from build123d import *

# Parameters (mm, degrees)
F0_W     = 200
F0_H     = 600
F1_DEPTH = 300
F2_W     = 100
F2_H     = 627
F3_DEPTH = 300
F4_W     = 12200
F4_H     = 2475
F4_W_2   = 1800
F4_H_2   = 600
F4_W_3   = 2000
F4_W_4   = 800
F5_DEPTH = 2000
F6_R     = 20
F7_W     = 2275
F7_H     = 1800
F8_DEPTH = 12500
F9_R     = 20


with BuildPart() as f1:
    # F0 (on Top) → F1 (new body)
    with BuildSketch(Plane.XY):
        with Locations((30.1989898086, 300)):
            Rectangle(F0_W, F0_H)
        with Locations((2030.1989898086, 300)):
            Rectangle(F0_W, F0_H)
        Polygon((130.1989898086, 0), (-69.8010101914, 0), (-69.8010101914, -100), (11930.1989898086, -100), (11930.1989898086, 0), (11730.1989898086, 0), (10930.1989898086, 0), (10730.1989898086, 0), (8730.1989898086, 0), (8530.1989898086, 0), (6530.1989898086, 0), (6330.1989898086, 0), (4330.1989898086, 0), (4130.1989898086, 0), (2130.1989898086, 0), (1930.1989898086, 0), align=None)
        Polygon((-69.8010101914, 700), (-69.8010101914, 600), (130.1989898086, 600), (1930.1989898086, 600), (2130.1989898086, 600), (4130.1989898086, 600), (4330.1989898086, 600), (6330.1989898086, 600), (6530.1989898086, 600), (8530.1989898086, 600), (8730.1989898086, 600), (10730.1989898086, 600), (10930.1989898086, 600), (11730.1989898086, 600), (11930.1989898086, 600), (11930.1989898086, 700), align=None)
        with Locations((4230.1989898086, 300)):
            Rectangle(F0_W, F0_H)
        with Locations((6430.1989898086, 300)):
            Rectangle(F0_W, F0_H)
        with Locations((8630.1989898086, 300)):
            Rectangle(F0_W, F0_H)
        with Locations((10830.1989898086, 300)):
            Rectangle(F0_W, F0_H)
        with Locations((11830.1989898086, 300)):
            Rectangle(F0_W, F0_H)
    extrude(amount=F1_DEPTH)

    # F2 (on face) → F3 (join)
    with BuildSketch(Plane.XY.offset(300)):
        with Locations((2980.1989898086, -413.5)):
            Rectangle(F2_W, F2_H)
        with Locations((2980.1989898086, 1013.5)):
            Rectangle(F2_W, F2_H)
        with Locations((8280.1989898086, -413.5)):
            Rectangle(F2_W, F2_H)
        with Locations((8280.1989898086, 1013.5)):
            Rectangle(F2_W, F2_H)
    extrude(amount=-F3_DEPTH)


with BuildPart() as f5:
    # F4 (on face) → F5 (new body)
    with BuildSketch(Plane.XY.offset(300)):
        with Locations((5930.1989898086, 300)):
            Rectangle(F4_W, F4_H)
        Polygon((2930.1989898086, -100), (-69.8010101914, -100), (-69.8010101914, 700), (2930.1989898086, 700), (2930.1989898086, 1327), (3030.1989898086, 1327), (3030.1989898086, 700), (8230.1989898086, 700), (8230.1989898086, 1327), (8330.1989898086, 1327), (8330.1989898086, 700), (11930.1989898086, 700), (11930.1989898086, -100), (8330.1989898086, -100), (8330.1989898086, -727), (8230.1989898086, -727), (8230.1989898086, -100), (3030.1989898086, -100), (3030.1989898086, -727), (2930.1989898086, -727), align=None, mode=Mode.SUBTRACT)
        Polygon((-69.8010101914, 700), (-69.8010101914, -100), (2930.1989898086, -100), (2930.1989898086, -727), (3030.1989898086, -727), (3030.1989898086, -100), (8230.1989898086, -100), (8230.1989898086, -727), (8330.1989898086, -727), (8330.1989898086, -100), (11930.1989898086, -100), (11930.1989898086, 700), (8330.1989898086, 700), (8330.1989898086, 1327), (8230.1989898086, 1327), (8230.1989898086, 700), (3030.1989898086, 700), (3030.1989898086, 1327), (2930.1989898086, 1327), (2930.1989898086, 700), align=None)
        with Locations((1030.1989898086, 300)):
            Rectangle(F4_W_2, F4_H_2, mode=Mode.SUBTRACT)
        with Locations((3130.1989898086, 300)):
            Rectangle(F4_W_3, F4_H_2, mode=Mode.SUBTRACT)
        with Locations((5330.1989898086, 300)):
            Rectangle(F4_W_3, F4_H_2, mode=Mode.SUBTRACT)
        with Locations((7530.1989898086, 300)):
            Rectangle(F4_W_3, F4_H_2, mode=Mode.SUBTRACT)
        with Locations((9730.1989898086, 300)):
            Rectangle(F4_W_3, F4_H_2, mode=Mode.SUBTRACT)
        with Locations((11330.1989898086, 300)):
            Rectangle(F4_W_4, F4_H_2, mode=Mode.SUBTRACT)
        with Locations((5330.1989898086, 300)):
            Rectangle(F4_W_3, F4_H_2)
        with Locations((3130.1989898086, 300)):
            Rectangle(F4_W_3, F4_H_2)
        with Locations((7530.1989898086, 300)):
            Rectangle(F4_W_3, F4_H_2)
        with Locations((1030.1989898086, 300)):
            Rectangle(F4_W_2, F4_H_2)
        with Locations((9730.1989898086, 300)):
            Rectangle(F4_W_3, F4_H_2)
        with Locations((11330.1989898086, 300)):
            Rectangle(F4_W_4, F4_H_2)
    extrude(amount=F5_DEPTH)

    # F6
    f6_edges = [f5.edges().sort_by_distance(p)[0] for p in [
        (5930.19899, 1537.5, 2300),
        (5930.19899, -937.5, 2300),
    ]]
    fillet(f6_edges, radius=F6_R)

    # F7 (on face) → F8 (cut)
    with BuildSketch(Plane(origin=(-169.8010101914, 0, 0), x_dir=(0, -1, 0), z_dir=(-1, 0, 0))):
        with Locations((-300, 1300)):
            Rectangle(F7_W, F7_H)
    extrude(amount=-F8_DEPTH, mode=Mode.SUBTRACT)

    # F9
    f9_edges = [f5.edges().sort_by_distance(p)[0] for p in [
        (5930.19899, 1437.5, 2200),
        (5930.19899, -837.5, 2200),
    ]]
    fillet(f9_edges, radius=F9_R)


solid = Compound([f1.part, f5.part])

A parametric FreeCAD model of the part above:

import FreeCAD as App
import Part
import Sketcher
from FreeCAD import Vector


def edges_at(feature, points):
    """Names of the edges that pass closest to the given points."""
    edges = feature.Shape.Edges
    near = lambda p: min(range(len(edges)), key=lambda i: edges[i].distToShape(Part.Vertex(*p))[0])
    return sorted({f"Edge{near(p) + 1}" for p in points})

doc = App.newDocument("Part")
body = doc.addObject("PartDesign::Body", "Body")

sketch1 = body.newObject("Sketcher::SketchObject", "Sketch")
sketch1.AttachmentSupport = (doc.getObject("XY_Plane"), [""])
sketch1.MapMode = "FlatFace"
sketch1.addGeometry(Part.LineSegment(Vector(-70, -100, 0), Vector(11930, -100, 0)), False)
sketch1.addGeometry(Part.LineSegment(Vector(11930, -100, 0), Vector(11930, 700, 0)), False)
sketch1.addGeometry(Part.LineSegment(Vector(11930, 700, 0), Vector(-70, 700, 0)), False)
sketch1.addGeometry(Part.LineSegment(Vector(-70, 700, 0), Vector(-70, -100, 0)), False)
sketch1.addGeometry(Part.LineSegment(Vector(11730, 0, 0), Vector(10930, 0, 0)), False)
sketch1.addGeometry(Part.LineSegment(Vector(10930, 0, 0), Vector(10930, 600, 0)), False)
sketch1.addGeometry(Part.LineSegment(Vector(10930, 600, 0), Vector(11730, 600, 0)), False)
sketch1.addGeometry(Part.LineSegment(Vector(11730, 600, 0), Vector(11730, 0, 0)), False)
sketch1.addGeometry(Part.LineSegment(Vector(10730, 0, 0), Vector(8730, 0, 0)), False)
sketch1.addGeometry(Part.LineSegment(Vector(8730, 0, 0), Vector(8730, 600, 0)), False)
sketch1.addGeometry(Part.LineSegment(Vector(8730, 600, 0), Vector(10730, 600, 0)), False)
sketch1.addGeometry(Part.LineSegment(Vector(10730, 600, 0), Vector(10730, 0, 0)), False)
sketch1.addGeometry(Part.LineSegment(Vector(8530, 0, 0), Vector(6530, 0, 0)), False)
sketch1.addGeometry(Part.LineSegment(Vector(6530, 0, 0), Vector(6530, 600, 0)), False)
sketch1.addGeometry(Part.LineSegment(Vector(6530, 600, 0), Vector(8530, 600, 0)), False)
sketch1.addGeometry(Part.LineSegment(Vector(8530, 600, 0), Vector(8530, 0, 0)), False)
sketch1.addGeometry(Part.LineSegment(Vector(6330, 0, 0), Vector(4330, 0, 0)), False)
sketch1.addGeometry(Part.LineSegment(Vector(4330, 0, 0), Vector(4330, 600, 0)), False)
sketch1.addGeometry(Part.LineSegment(Vector(4330, 600, 0), Vector(6330, 600, 0)), False)
sketch1.addGeometry(Part.LineSegment(Vector(6330, 600, 0), Vector(6330, 0, 0)), False)
sketch1.addGeometry(Part.LineSegment(Vector(4130, 0, 0), Vector(2130, 0, 0)), False)
sketch1.addGeometry(Part.LineSegment(Vector(2130, 0, 0), Vector(2130, 600, 0)), False)
sketch1.addGeometry(Part.LineSegment(Vector(2130, 600, 0), Vector(4130, 600, 0)), False)
sketch1.addGeometry(Part.LineSegment(Vector(4130, 600, 0), Vector(4130, 0, 0)), False)
sketch1.addGeometry(Part.LineSegment(Vector(1930, 600, 0), Vector(1930, 0, 0)), False)
sketch1.addGeometry(Part.LineSegment(Vector(1930, 0, 0), Vector(130, 0, 0)), False)
sketch1.addGeometry(Part.LineSegment(Vector(130, 0, 0), Vector(130, 600, 0)), False)
sketch1.addGeometry(Part.LineSegment(Vector(130, 600, 0), Vector(1930, 600, 0)), False)
sketch1.addConstraint(Sketcher.Constraint("Coincident", 0, 2, 1, 1))
sketch1.addConstraint(Sketcher.Constraint("Coincident", 1, 2, 2, 1))
sketch1.addConstraint(Sketcher.Constraint("Coincident", 2, 2, 3, 1))
sketch1.addConstraint(Sketcher.Constraint("Coincident", 3, 2, 0, 1))
sketch1.addConstraint(Sketcher.Constraint("Coincident", 4, 2, 5, 1))
sketch1.addConstraint(Sketcher.Constraint("Coincident", 5, 2, 6, 1))
sketch1.addConstraint(Sketcher.Constraint("Coincident", 6, 2, 7, 1))
sketch1.addConstraint(Sketcher.Constraint("Coincident", 7, 2, 4, 1))
sketch1.addConstraint(Sketcher.Constraint("Coincident", 8, 2, 9, 1))
sketch1.addConstraint(Sketcher.Constraint("Coincident", 9, 2, 10, 1))
sketch1.addConstraint(Sketcher.Constraint("Coincident", 10, 2, 11, 1))
sketch1.addConstraint(Sketcher.Constraint("Coincident", 11, 2, 8, 1))
sketch1.addConstraint(Sketcher.Constraint("Coincident", 12, 2, 13, 1))
sketch1.addConstraint(Sketcher.Constraint("Coincident", 13, 2, 14, 1))
sketch1.addConstraint(Sketcher.Constraint("Coincident", 14, 2, 15, 1))
sketch1.addConstraint(Sketcher.Constraint("Coincident", 15, 2, 12, 1))
sketch1.addConstraint(Sketcher.Constraint("Coincident", 16, 2, 17, 1))
sketch1.addConstraint(Sketcher.Constraint("Coincident", 17, 2, 18, 1))
sketch1.addConstraint(Sketcher.Constraint("Coincident", 18, 2, 19, 1))
sketch1.addConstraint(Sketcher.Constraint("Coincident", 19, 2, 16, 1))
sketch1.addConstraint(Sketcher.Constraint("Coincident", 20, 2, 21, 1))
sketch1.addConstraint(Sketcher.Constraint("Coincident", 21, 2, 22, 1))
sketch1.addConstraint(Sketcher.Constraint("Coincident", 22, 2, 23, 1))
sketch1.addConstraint(Sketcher.Constraint("Coincident", 23, 2, 20, 1))
sketch1.addConstraint(Sketcher.Constraint("Coincident", 24, 2, 25, 1))
sketch1.addConstraint(Sketcher.Constraint("Coincident", 25, 2, 26, 1))
sketch1.addConstraint(Sketcher.Constraint("Coincident", 26, 2, 27, 1))
sketch1.addConstraint(Sketcher.Constraint("Coincident", 27, 2, 24, 1))
sketch1.addConstraint(Sketcher.Constraint("Horizontal", 0))
sketch1.addConstraint(Sketcher.Constraint("Vertical", 1))
sketch1.addConstraint(Sketcher.Constraint("Horizontal", 2))
sketch1.addConstraint(Sketcher.Constraint("Vertical", 3))
sketch1.addConstraint(Sketcher.Constraint("Horizontal", 4))
sketch1.addConstraint(Sketcher.Constraint("Vertical", 5))
sketch1.addConstraint(Sketcher.Constraint("Horizontal", 6))
sketch1.addConstraint(Sketcher.Constraint("Vertical", 7))
sketch1.addConstraint(Sketcher.Constraint("Horizontal", 8))
sketch1.addConstraint(Sketcher.Constraint("Vertical", 9))
sketch1.addConstraint(Sketcher.Constraint("Horizontal", 10))
sketch1.addConstraint(Sketcher.Constraint("Vertical", 11))
sketch1.addConstraint(Sketcher.Constraint("Horizontal", 12))
sketch1.addConstraint(Sketcher.Constraint("Vertical", 13))
sketch1.addConstraint(Sketcher.Constraint("Horizontal", 14))
sketch1.addConstraint(Sketcher.Constraint("Vertical", 15))
sketch1.addConstraint(Sketcher.Constraint("Horizontal", 16))
sketch1.addConstraint(Sketcher.Constraint("Vertical", 17))
sketch1.addConstraint(Sketcher.Constraint("Horizontal", 18))
sketch1.addConstraint(Sketcher.Constraint("Vertical", 19))
sketch1.addConstraint(Sketcher.Constraint("Horizontal", 20))
sketch1.addConstraint(Sketcher.Constraint("Vertical", 21))
sketch1.addConstraint(Sketcher.Constraint("Horizontal", 22))
sketch1.addConstraint(Sketcher.Constraint("Vertical", 23))
sketch1.addConstraint(Sketcher.Constraint("Vertical", 24))
sketch1.addConstraint(Sketcher.Constraint("Horizontal", 25))
sketch1.addConstraint(Sketcher.Constraint("Vertical", 26))
sketch1.addConstraint(Sketcher.Constraint("Horizontal", 27))
sketch1.addConstraint(Sketcher.Constraint("PointOnObject", 4, 2, -1))
sketch1.addConstraint(Sketcher.Constraint("PointOnObject", 8, 2, -1))
sketch1.addConstraint(Sketcher.Constraint("PointOnObject", 12, 2, -1))
sketch1.addConstraint(Sketcher.Constraint("PointOnObject", 16, 2, -1))
sketch1.addConstraint(Sketcher.Constraint("PointOnObject", 20, 2, -1))
sketch1.addConstraint(Sketcher.Constraint("PointOnObject", 24, 2, -1))
sketch1.addConstraint(Sketcher.Constraint("Horizontal", 6, 2, 9, 2))
sketch1.addConstraint(Sketcher.Constraint("Horizontal", 10, 2, 13, 2))
sketch1.addConstraint(Sketcher.Constraint("Horizontal", 14, 2, 17, 2))
sketch1.addConstraint(Sketcher.Constraint("Horizontal", 18, 2, 21, 2))
sketch1.addConstraint(Sketcher.Constraint("Horizontal", 22, 2, 26, 2))
sketch1.addConstraint(Sketcher.Constraint("Equal", 10, 12))
sketch1.addConstraint(Sketcher.Constraint("Equal", 14, 16))
sketch1.addConstraint(Sketcher.Constraint("Equal", 18, 20))
sketch1.addConstraint(Sketcher.Constraint("Equal", 6, 1))
sketch1.addConstraint(Sketcher.Constraint("DistanceX", 0, 1, 0, 2, 12000.0))
sketch1.addConstraint(Sketcher.Constraint("DistanceX", 4, 2, 4, 1, 800.0))
sketch1.addConstraint(Sketcher.Constraint("DistanceX", 8, 2, 8, 1, 2000.0))
sketch1.addConstraint(Sketcher.Constraint("DistanceX", 25, 2, 25, 1, 1800.0))
sketch1.addConstraint(Sketcher.Constraint("DistanceY", 5, 1, 5, 2, 600.0))
sketch1.addConstraint(Sketcher.Constraint("DistanceY", 0, 2, -1, 1, 100.0))
sketch1.addConstraint(Sketcher.Constraint("DistanceX", 4, 2, 0, 2, 1000.0))
sketch1.addConstraint(Sketcher.Constraint("DistanceX", 8, 2, 4, 2, 2200.0))
sketch1.addConstraint(Sketcher.Constraint("DistanceX", 12, 2, 8, 2, 2200.0))
sketch1.addConstraint(Sketcher.Constraint("DistanceX", 16, 2, 12, 2, 2200.0))
sketch1.addConstraint(Sketcher.Constraint("DistanceX", 20, 2, 16, 2, 2200.0))
sketch1.addConstraint(Sketcher.Constraint("DistanceX", 24, 2, 20, 2, 200.0))
sketch1.addConstraint(Sketcher.Constraint("DistanceX", -1, 1, 0, 2, 11930.19899))
pad1 = body.newObject("PartDesign::Pad", "Pad")
pad1.Profile = sketch1
pad1.Length = 300

sketch2 = body.newObject("Sketcher::SketchObject", "Sketch001")
sketch2.AttachmentSupport = (doc.getObject("XY_Plane"), [""])
sketch2.MapMode = "FlatFace"
sketch2.AttachmentOffset = App.Placement(Vector(0, 0, 300), App.Rotation())
sketch2.addGeometry(Part.LineSegment(Vector(2930, -100, 0), Vector(2930, -727, 0)), False)
sketch2.addGeometry(Part.LineSegment(Vector(2930, -727, 0), Vector(3030, -727, 0)), False)
sketch2.addGeometry(Part.LineSegment(Vector(3030, -727, 0), Vector(3030, -100, 0)), False)
sketch2.addGeometry(Part.LineSegment(Vector(3030, -100, 0), Vector(2930, -100, 0)), False)
sketch2.addGeometry(Part.LineSegment(Vector(2930, 1327, 0), Vector(2930, 700, 0)), False)
sketch2.addGeometry(Part.LineSegment(Vector(2930, 700, 0), Vector(3030, 700, 0)), False)
sketch2.addGeometry(Part.LineSegment(Vector(3030, 700, 0), Vector(3030, 1327, 0)), False)
sketch2.addGeometry(Part.LineSegment(Vector(3030, 1327, 0), Vector(2930, 1327, 0)), False)
sketch2.addGeometry(Part.LineSegment(Vector(8230, -100, 0), Vector(8230, -727, 0)), False)
sketch2.addGeometry(Part.LineSegment(Vector(8230, -727, 0), Vector(8330, -727, 0)), False)
sketch2.addGeometry(Part.LineSegment(Vector(8330, -727, 0), Vector(8330, -100, 0)), False)
sketch2.addGeometry(Part.LineSegment(Vector(8330, -100, 0), Vector(8230, -100, 0)), False)
sketch2.addGeometry(Part.LineSegment(Vector(8230, 1327, 0), Vector(8230, 700, 0)), False)
sketch2.addGeometry(Part.LineSegment(Vector(8230, 700, 0), Vector(8330, 700, 0)), False)
sketch2.addGeometry(Part.LineSegment(Vector(8330, 700, 0), Vector(8330, 1327, 0)), False)
sketch2.addGeometry(Part.LineSegment(Vector(8330, 1327, 0), Vector(8230, 1327, 0)), False)
sketch2.addConstraint(Sketcher.Constraint("Coincident", 0, 2, 1, 1))
sketch2.addConstraint(Sketcher.Constraint("Coincident", 1, 2, 2, 1))
sketch2.addConstraint(Sketcher.Constraint("Coincident", 2, 2, 3, 1))
sketch2.addConstraint(Sketcher.Constraint("Coincident", 3, 2, 0, 1))
sketch2.addConstraint(Sketcher.Constraint("Coincident", 4, 2, 5, 1))
sketch2.addConstraint(Sketcher.Constraint("Coincident", 5, 2, 6, 1))
sketch2.addConstraint(Sketcher.Constraint("Coincident", 6, 2, 7, 1))
sketch2.addConstraint(Sketcher.Constraint("Coincident", 7, 2, 4, 1))
sketch2.addConstraint(Sketcher.Constraint("Coincident", 8, 2, 9, 1))
sketch2.addConstraint(Sketcher.Constraint("Coincident", 9, 2, 10, 1))
sketch2.addConstraint(Sketcher.Constraint("Coincident", 10, 2, 11, 1))
sketch2.addConstraint(Sketcher.Constraint("Coincident", 11, 2, 8, 1))
sketch2.addConstraint(Sketcher.Constraint("Coincident", 12, 2, 13, 1))
sketch2.addConstraint(Sketcher.Constraint("Coincident", 13, 2, 14, 1))
sketch2.addConstraint(Sketcher.Constraint("Coincident", 14, 2, 15, 1))
sketch2.addConstraint(Sketcher.Constraint("Coincident", 15, 2, 12, 1))
sketch2.addConstraint(Sketcher.Constraint("Vertical", 0))
sketch2.addConstraint(Sketcher.Constraint("Horizontal", 1))
sketch2.addConstraint(Sketcher.Constraint("Vertical", 2))
sketch2.addConstraint(Sketcher.Constraint("Horizontal", 3))
sketch2.addConstraint(Sketcher.Constraint("Vertical", 4))
sketch2.addConstraint(Sketcher.Constraint("Horizontal", 5))
sketch2.addConstraint(Sketcher.Constraint("Vertical", 6))
sketch2.addConstraint(Sketcher.Constraint("Horizontal", 7))
sketch2.addConstraint(Sketcher.Constraint("Vertical", 8))
sketch2.addConstraint(Sketcher.Constraint("Horizontal", 9))
sketch2.addConstraint(Sketcher.Constraint("Vertical", 10))
sketch2.addConstraint(Sketcher.Constraint("Horizontal", 11))
sketch2.addConstraint(Sketcher.Constraint("Vertical", 12))
sketch2.addConstraint(Sketcher.Constraint("Horizontal", 13))
sketch2.addConstraint(Sketcher.Constraint("Vertical", 14))
sketch2.addConstraint(Sketcher.Constraint("Horizontal", 15))
sketch2.addConstraint(Sketcher.Constraint("Horizontal", 1, 2, 8, 2))
sketch2.addConstraint(Sketcher.Constraint("Horizontal", 3, 2, 10, 2))
sketch2.addConstraint(Sketcher.Constraint("Horizontal", 5, 2, 12, 2))
sketch2.addConstraint(Sketcher.Constraint("Horizontal", 7, 2, 14, 2))
sketch2.addConstraint(Sketcher.Constraint("Vertical", 3, 2, 4, 2))
sketch2.addConstraint(Sketcher.Constraint("Vertical", 2, 2, 5, 2))
sketch2.addConstraint(Sketcher.Constraint("Vertical", 11, 2, 12, 2))
sketch2.addConstraint(Sketcher.Constraint("Vertical", 10, 2, 13, 2))
sketch2.addConstraint(Sketcher.Constraint("Equal", 7, 9))
sketch2.addConstraint(Sketcher.Constraint("Equal", 2, 4))
sketch2.addConstraint(Sketcher.Constraint("DistanceX", 1, 1, 1, 2, 100.0))
sketch2.addConstraint(Sketcher.Constraint("DistanceY", 0, 2, 0, 1, 627.0))
sketch2.addConstraint(Sketcher.Constraint("DistanceY", 0, 2, -1, 1, 727.0))
sketch2.addConstraint(Sketcher.Constraint("DistanceY", -1, 1, 4, 2, 700.0))
sketch2.addConstraint(Sketcher.Constraint("DistanceX", 1, 2, 8, 2, 5200.0))
sketch2.addConstraint(Sketcher.Constraint("DistanceX", -1, 1, 0, 2, 2930.19899))
pad2 = body.newObject("PartDesign::Pad", "Pad001")
pad2.Profile = sketch2
pad2.Length = 300
pad2.Reversed = True
body2 = doc.addObject("PartDesign::Body", "Body001")

sketch3 = body2.newObject("Sketcher::SketchObject", "Sketch002")
sketch3.AttachmentSupport = (doc.getObject("XY_Plane001"), [""])
sketch3.MapMode = "FlatFace"
sketch3.AttachmentOffset = App.Placement(Vector(0, 0, 300), App.Rotation())
sketch3.addGeometry(Part.LineSegment(Vector(-170, 1538, 0), Vector(-170, -938, 0)), False)
sketch3.addGeometry(Part.LineSegment(Vector(-170, -938, 0), Vector(12030, -938, 0)), False)
sketch3.addGeometry(Part.LineSegment(Vector(12030, -938, 0), Vector(12030, 1538, 0)), False)
sketch3.addGeometry(Part.LineSegment(Vector(12030, 1538, 0), Vector(-170, 1538, 0)), False)
sketch3.addConstraint(Sketcher.Constraint("Coincident", 0, 2, 1, 1))
sketch3.addConstraint(Sketcher.Constraint("Coincident", 1, 2, 2, 1))
sketch3.addConstraint(Sketcher.Constraint("Coincident", 2, 2, 3, 1))
sketch3.addConstraint(Sketcher.Constraint("Coincident", 3, 2, 0, 1))
sketch3.addConstraint(Sketcher.Constraint("Vertical", 0))
sketch3.addConstraint(Sketcher.Constraint("Horizontal", 1))
sketch3.addConstraint(Sketcher.Constraint("Vertical", 2))
sketch3.addConstraint(Sketcher.Constraint("Horizontal", 3))
sketch3.addConstraint(Sketcher.Constraint("DistanceX", 1, 1, 1, 2, 12200.0))
sketch3.addConstraint(Sketcher.Constraint("DistanceY", 0, 2, 0, 1, 2475.0))
sketch3.addConstraint(Sketcher.Constraint("DistanceY", 0, 2, -1, 1, 937.5))
sketch3.addConstraint(Sketcher.Constraint("DistanceX", 0, 2, -1, 1, 169.80101))
pad3 = body2.newObject("PartDesign::Pad", "Pad002")
pad3.Profile = sketch3
pad3.Length = 2000
doc.recompute()

fillet = body2.newObject("PartDesign::Fillet", "Fillet")
fillet.Base = (pad3, edges_at(pad3, [(5930.199, 1537.5, 2300), (5930.199, -937.5, 2300)]))
fillet.Radius = 20

sketch4 = body2.newObject("Sketcher::SketchObject", "Sketch003")
sketch4.AttachmentSupport = (doc.getObject("YZ_Plane001"), [""])
sketch4.MapMode = "FlatFace"
sketch4.AttachmentOffset = App.Placement(Vector(0, 0, -169.80101), App.Rotation())
sketch4.addGeometry(Part.LineSegment(Vector(1438, 2200, 0), Vector(1438, 400, 0)), False)
sketch4.addGeometry(Part.LineSegment(Vector(1438, 400, 0), Vector(-838, 400, 0)), False)
sketch4.addGeometry(Part.LineSegment(Vector(-838, 400, 0), Vector(-838, 2200, 0)), False)
sketch4.addGeometry(Part.LineSegment(Vector(-838, 2200, 0), Vector(1438, 2200, 0)), False)
sketch4.addConstraint(Sketcher.Constraint("Coincident", 0, 2, 1, 1))
sketch4.addConstraint(Sketcher.Constraint("Coincident", 1, 2, 2, 1))
sketch4.addConstraint(Sketcher.Constraint("Coincident", 2, 2, 3, 1))
sketch4.addConstraint(Sketcher.Constraint("Coincident", 3, 2, 0, 1))
sketch4.addConstraint(Sketcher.Constraint("Vertical", 0))
sketch4.addConstraint(Sketcher.Constraint("Horizontal", 1))
sketch4.addConstraint(Sketcher.Constraint("Vertical", 2))
sketch4.addConstraint(Sketcher.Constraint("Horizontal", 3))
sketch4.addConstraint(Sketcher.Constraint("DistanceX", 1, 2, 1, 1, 2275.0))
sketch4.addConstraint(Sketcher.Constraint("DistanceY", 0, 2, 0, 1, 1800.0))
sketch4.addConstraint(Sketcher.Constraint("DistanceY", -1, 1, 0, 2, 400.0))
sketch4.addConstraint(Sketcher.Constraint("DistanceX", -1, 1, 0, 2, 1437.5))
pocket1 = body2.newObject("PartDesign::Pocket", "Pocket")
pocket1.Profile = sketch4
pocket1.Length = 12500
pocket1.Reversed = True
doc.recompute()

fillet2 = body2.newObject("PartDesign::Fillet", "Fillet001")
fillet2.Base = (pocket1, edges_at(pocket1, [(5930.199, 1437.5, 2200), (5930.199, -837.5, 2200)]))
fillet2.Radius = 20

doc.recompute()
